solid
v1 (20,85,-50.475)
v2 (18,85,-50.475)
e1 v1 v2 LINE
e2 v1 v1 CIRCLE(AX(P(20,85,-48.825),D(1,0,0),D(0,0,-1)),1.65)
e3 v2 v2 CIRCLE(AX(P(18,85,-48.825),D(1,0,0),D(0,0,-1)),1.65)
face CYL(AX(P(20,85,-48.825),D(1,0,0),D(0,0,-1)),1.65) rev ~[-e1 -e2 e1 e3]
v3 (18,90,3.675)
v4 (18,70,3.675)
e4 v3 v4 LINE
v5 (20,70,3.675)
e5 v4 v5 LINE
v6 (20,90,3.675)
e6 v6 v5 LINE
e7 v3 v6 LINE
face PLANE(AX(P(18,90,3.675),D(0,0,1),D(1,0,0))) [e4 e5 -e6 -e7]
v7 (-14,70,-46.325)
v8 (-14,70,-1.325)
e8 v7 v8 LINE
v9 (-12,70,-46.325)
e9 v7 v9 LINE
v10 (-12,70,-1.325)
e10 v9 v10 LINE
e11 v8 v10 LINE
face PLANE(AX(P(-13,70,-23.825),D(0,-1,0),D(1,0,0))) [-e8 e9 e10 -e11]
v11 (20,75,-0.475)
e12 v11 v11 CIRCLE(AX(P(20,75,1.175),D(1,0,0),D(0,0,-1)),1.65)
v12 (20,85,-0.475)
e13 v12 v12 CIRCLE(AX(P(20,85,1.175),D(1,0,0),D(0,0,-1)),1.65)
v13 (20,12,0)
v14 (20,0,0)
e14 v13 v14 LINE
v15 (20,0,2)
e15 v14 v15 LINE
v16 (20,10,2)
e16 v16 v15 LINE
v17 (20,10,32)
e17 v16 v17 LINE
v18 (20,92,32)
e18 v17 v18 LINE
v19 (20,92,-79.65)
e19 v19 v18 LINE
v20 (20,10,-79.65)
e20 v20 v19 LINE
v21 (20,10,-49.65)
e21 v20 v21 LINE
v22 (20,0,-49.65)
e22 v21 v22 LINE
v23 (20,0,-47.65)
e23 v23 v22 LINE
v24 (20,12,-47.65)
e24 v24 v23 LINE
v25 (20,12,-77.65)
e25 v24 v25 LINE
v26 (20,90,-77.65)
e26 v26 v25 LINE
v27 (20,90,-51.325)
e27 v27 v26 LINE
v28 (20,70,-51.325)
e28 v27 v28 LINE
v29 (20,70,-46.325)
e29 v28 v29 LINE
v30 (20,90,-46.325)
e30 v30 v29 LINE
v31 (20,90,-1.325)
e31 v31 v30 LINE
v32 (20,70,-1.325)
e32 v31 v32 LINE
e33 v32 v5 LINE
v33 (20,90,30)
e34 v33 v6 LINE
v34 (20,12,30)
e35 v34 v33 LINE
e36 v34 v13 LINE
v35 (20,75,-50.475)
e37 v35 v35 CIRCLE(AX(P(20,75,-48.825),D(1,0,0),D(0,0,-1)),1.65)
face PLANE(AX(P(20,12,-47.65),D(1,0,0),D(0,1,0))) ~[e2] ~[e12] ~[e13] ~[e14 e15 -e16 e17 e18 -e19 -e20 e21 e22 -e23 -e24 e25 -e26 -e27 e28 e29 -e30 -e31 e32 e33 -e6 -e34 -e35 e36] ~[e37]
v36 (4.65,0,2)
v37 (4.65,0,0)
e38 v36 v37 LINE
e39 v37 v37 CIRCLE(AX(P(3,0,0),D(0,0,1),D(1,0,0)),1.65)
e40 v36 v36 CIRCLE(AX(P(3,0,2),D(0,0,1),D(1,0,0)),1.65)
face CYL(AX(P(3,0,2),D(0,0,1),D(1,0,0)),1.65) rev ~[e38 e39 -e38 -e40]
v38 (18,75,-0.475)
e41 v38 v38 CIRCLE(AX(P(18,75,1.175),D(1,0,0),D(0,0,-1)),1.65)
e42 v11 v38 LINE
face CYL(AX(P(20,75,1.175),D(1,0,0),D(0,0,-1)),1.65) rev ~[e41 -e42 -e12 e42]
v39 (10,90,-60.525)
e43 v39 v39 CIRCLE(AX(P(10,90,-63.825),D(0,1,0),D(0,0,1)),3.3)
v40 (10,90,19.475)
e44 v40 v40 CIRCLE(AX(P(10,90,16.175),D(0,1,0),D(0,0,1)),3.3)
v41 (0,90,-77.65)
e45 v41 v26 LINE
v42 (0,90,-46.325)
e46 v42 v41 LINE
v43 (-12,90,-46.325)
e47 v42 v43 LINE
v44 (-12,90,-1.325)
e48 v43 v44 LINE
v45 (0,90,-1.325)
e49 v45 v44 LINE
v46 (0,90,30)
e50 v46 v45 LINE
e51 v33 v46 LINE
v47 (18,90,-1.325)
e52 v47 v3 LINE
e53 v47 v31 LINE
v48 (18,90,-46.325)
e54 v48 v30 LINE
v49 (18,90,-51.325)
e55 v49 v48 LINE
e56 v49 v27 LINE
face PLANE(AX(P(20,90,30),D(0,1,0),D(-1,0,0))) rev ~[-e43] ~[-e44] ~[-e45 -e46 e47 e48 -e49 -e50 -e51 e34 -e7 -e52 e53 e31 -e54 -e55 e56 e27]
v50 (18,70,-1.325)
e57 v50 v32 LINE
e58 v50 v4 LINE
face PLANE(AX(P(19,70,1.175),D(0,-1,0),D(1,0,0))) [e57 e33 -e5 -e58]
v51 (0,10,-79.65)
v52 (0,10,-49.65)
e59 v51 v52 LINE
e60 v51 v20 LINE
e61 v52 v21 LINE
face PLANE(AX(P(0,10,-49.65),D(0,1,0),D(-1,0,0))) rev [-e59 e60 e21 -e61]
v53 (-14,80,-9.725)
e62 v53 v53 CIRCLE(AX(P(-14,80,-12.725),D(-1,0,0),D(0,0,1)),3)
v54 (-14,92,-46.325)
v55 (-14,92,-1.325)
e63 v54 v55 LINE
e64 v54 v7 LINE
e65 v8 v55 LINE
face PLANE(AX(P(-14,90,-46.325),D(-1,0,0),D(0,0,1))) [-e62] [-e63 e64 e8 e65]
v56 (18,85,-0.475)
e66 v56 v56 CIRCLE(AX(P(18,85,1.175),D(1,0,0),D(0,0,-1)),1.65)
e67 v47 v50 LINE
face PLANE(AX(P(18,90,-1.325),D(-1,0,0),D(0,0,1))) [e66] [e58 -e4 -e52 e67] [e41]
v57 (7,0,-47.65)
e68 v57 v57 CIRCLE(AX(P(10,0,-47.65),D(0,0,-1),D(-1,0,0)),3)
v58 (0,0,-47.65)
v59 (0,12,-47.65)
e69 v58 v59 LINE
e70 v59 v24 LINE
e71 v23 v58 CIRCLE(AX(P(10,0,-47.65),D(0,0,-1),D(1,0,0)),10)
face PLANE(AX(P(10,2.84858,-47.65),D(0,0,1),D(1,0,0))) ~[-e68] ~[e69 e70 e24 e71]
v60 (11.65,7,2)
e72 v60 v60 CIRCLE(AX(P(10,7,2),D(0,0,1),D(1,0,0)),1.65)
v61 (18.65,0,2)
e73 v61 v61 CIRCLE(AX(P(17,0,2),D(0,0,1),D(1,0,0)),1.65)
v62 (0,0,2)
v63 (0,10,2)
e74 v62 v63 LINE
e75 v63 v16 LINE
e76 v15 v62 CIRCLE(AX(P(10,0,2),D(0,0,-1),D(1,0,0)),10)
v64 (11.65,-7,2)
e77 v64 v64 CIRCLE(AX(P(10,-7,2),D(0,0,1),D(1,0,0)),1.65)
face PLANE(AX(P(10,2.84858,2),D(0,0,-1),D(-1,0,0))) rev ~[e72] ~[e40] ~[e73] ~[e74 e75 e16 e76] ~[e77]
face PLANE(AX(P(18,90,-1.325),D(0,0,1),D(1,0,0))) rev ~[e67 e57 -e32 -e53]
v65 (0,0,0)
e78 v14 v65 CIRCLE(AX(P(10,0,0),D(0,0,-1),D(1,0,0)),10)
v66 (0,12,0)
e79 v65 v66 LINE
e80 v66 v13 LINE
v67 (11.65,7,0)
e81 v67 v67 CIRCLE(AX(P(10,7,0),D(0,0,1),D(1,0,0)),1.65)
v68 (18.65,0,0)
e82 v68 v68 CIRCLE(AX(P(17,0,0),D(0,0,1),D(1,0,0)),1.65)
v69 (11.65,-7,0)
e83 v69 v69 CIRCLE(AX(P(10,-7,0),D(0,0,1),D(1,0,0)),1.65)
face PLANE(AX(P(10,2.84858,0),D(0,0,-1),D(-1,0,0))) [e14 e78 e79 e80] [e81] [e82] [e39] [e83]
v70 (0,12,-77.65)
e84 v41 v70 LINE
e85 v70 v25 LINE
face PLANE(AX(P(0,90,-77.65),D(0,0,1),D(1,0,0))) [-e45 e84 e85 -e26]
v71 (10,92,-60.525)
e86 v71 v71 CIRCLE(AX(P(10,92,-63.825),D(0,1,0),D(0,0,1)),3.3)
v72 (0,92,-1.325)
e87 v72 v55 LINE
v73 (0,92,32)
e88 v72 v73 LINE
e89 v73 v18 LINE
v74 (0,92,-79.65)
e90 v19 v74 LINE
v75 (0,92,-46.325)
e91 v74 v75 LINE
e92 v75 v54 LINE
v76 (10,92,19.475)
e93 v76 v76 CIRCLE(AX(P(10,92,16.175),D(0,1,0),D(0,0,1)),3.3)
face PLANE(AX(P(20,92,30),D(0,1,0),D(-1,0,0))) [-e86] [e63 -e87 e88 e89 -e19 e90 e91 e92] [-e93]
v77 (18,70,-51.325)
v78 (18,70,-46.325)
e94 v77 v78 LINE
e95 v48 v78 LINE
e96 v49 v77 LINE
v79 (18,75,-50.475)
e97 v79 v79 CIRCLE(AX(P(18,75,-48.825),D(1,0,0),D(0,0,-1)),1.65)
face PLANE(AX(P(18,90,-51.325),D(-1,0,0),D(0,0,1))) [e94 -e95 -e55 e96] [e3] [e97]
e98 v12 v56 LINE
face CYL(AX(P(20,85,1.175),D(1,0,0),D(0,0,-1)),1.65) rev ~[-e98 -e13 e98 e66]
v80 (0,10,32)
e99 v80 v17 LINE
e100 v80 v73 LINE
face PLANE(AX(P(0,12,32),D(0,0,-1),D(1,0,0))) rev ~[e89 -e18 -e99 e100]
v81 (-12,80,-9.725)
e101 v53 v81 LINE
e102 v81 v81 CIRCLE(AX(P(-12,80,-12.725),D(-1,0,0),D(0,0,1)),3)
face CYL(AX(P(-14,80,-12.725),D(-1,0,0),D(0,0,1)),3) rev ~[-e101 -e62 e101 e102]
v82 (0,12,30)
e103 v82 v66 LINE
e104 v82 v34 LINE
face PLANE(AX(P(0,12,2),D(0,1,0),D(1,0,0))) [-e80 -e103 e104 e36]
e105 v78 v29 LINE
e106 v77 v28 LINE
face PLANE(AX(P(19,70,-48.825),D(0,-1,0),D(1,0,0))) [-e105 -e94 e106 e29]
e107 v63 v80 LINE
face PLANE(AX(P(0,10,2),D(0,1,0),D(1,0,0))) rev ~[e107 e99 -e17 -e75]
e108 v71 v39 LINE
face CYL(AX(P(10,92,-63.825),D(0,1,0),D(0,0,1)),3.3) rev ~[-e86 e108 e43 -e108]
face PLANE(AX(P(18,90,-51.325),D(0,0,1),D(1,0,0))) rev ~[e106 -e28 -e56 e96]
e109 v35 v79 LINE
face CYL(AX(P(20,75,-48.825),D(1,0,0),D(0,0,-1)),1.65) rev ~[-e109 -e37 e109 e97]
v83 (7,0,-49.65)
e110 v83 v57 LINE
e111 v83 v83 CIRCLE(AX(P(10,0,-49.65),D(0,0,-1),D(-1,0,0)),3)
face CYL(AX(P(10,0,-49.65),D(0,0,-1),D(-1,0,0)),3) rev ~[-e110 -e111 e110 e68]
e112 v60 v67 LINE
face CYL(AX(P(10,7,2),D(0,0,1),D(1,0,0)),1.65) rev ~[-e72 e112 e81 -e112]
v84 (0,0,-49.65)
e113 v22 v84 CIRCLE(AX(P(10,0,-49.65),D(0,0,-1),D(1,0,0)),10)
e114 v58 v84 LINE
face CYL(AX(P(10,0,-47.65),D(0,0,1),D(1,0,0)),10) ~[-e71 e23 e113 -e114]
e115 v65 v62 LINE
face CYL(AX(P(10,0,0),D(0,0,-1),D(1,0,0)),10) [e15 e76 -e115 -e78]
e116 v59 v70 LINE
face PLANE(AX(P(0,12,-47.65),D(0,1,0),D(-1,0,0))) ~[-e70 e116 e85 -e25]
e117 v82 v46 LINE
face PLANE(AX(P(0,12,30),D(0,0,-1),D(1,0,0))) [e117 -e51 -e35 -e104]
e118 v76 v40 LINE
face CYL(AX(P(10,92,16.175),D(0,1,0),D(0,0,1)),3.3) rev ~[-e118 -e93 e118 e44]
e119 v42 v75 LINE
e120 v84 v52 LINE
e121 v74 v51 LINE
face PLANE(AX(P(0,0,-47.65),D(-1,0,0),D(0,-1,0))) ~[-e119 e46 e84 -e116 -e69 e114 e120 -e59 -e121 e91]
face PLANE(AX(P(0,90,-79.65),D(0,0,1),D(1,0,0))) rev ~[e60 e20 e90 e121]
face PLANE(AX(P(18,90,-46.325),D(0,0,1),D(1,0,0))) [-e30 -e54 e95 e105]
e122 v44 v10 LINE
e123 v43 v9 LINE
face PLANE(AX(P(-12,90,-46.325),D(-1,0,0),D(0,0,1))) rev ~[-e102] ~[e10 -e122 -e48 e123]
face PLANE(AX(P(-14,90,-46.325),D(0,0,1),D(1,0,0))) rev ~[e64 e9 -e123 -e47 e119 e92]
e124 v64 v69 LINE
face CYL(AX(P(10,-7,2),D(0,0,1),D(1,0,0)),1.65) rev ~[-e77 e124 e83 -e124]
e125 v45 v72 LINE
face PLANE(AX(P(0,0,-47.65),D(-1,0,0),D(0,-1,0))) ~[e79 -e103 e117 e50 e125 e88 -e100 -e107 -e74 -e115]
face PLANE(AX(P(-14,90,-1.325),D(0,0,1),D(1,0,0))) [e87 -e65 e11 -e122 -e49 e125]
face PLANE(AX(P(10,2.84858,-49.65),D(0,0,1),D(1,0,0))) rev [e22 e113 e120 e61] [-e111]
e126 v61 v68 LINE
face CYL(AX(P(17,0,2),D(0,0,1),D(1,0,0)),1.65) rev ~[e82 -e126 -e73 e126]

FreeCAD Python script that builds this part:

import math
import FreeCAD as App
import Part
import Sketcher

V = App.Vector
Q = App.Units.Quantity


def add_polygon(sketch, points):
    """Adds a closed chain of lines whose ends are joined by coincident constraints."""
    first, n = sketch.GeometryCount, len(points)
    for a, b in zip(points, points[1:] + points[:1]):
        sketch.addGeometry(Part.LineSegment(App.Vector(*a, 0), App.Vector(*b, 0)), False)
    for i in range(n):
        sketch.addConstraint(Sketcher.Constraint("Coincident", first + i, 2, first + (i + 1) % n, 1))

doc = App.newDocument("Part")
body = doc.addObject("PartDesign::Body", "Body")

sketch1 = doc.addObject("Sketcher::SketchObject", "Sketch")
body.addObject(sketch1)
sketch1.AttachmentSupport = (doc.XY_Plane, [""])
sketch1.MapMode = "FlatFace"
sketch1.addGeometry([
    Part.LineSegment(V(0, 12, 0), V(0, 0, 0)),
    Part.ArcOfCircle(Part.Circle(V(10, 0, 0), V(0, 0, 1), 10), math.radians(180), math.radians(360)),
    Part.LineSegment(V(20, 0, 0), V(20, 12, 0)),
    Part.LineSegment(V(20, 12, 0), V(0, 12, 0)),
], False)
sketch1.addConstraint([
    Sketcher.Constraint("Tangent", 0, 2, 1, 1),
    Sketcher.Constraint("Tangent", 1, 2, 2, 1),
    Sketcher.Constraint("Coincident", 2, 2, 3, 1),
    Sketcher.Constraint("Coincident", 3, 2, 0, 1),
    Sketcher.Constraint("Vertical", 0),
    Sketcher.Constraint("Vertical", 2),
    Sketcher.Constraint("Horizontal", 3),
    Sketcher.Constraint("Coincident", 0, 2, -1, 1),
    Sketcher.Constraint("Radius", 1, Q("10 mm")),
    Sketcher.Constraint("DistanceY", 0, 2, 0, 1, Q("12 mm")),
])
pad1 = doc.addObject("PartDesign::Pad", "Pad")
body.addObject(pad1)
pad1.Profile = sketch1
pad1.Length = 2

sketch2 = doc.addObject("Sketcher::SketchObject", "Sketch001")
body.addObject(sketch2)
sketch2.AttachmentSupport = (doc.XY_Plane, [""])
sketch2.MapMode = "FlatFace"
sketch2.AttachmentOffset = App.Placement(V(0, 0, 2), App.Rotation())
sketch2.addGeometry([
    Part.Circle(V(17, 0, 0), V(0, 0, 1), 1.6),
    Part.Circle(V(10, -7, 0), V(0, 0, 1), 1.6),
    Part.Circle(V(3, 0, 0), V(0, 0, 1), 1.6),
    Part.Circle(V(10, 7, 0), V(0, 0, 1), 1.6),
], False)
sketch2.addConstraint([
    Sketcher.Constraint("Equal", 0, 1),
    Sketcher.Constraint("Equal", 1, 2),
    Sketcher.Constraint("Equal", 2, 3),
    Sketcher.Constraint("Symmetric", 1, 3, 3, 3, -1),
    Sketcher.Constraint("PointOnObject", 0, 3, -1),
    Sketcher.Constraint("PointOnObject", 2, 3, -1),
    Sketcher.Constraint("Diameter", 0, Q("3.3 mm")),
    Sketcher.Constraint("DistanceX", -1, 1, 0, 3, Q("17 mm")),
    Sketcher.Constraint("DistanceX", -1, 1, 1, 3, Q("10 mm")),
    Sketcher.Constraint("DistanceY", 1, 3, -1, 1, Q("7 mm")),
    Sketcher.Constraint("DistanceX", -1, 1, 2, 3, Q("3 mm")),
])
pocket1 = doc.addObject("PartDesign::Pocket", "Pocket")
body.addObject(pocket1)
pocket1.Profile = sketch2
pocket1.Length = 2

sketch3 = doc.addObject("Sketcher::SketchObject", "Sketch002")
body.addObject(sketch3)
sketch3.AttachmentSupport = (doc.XY_Plane, [""])
sketch3.MapMode = "FlatFace"
sketch3.AttachmentOffset = App.Placement(V(0, 0, 2), App.Rotation())
add_polygon(sketch3, [(0, 12), (0, 10), (20, 10), (20, 12)])
sketch3.addConstraint([
    Sketcher.Constraint("Vertical", 0),
    Sketcher.Constraint("Horizontal", 1),
    Sketcher.Constraint("Vertical", 2),
    Sketcher.Constraint("Horizontal", 3),
    Sketcher.Constraint("PointOnObject", 0, 2, -2),
    Sketcher.Constraint("DistanceX", 1, 1, 1, 2, Q("20 mm")),
    Sketcher.Constraint("DistanceY", 0, 2, 0, 1, Q("2 mm")),
    Sketcher.Constraint("DistanceY", -1, 1, 0, 2, Q("10 mm")),
])
pad2 = doc.addObject("PartDesign::Pad", "Pad001")
body.addObject(pad2)
pad2.Profile = sketch3
pad2.Length = 30

sketch4 = doc.addObject("Sketcher::SketchObject", "Sketch003")
body.addObject(sketch4)
sketch4.AttachmentSupport = (doc.XZ_Plane, [""])
sketch4.MapMode = "FlatFace"
sketch4.AttachmentOffset = App.Placement(V(0, 0, -12), App.Rotation())
add_polygon(sketch4, [(0, 30), (0, 32), (20, 32), (20, 30)])
sketch4.addConstraint([
    Sketcher.Constraint("Vertical", 0),
    Sketcher.Constraint("Horizontal", 1),
    Sketcher.Constraint("Vertical", 2),
    Sketcher.Constraint("Horizontal", 3),
    Sketcher.Constraint("PointOnObject", 0, 2, -2),
    Sketcher.Constraint("DistanceX", 1, 1, 1, 2, Q("20 mm")),
    Sketcher.Constraint("DistanceY", 0, 1, 0, 2, Q("2 mm")),
    Sketcher.Constraint("DistanceY", -1, 1, 0, 2, Q("32 mm")),
])
pad3 = doc.addObject("PartDesign::Pad", "Pad002")
body.addObject(pad3)
pad3.Profile = sketch4
pad3.Length = 80
pad3.Reversed = True

sketch5 = doc.addObject("Sketcher::SketchObject", "Sketch004")
body.addObject(sketch5)
sketch5.AttachmentSupport = (doc.XY_Plane, [""])
sketch5.MapMode = "FlatFace"
sketch5.AttachmentOffset = App.Placement(V(0, 0, 30), App.Rotation())
add_polygon(sketch5, [(20, 92), (20, 90), (0, 90), (0, 92)])
sketch5.addConstraint([
    Sketcher.Constraint("Vertical", 0),
    Sketcher.Constraint("Horizontal", 1),
    Sketcher.Constraint("Vertical", 2),
    Sketcher.Constraint("Horizontal", 3),
    Sketcher.Constraint("PointOnObject", 1, 2, -2),
    Sketcher.Constraint("DistanceX", 1, 2, 1, 1, Q("20 mm")),
    Sketcher.Constraint("DistanceY", 0, 2, 0, 1, Q("2 mm")),
    Sketcher.Constraint("DistanceY", -1, 1, 0, 2, Q("90 mm")),
])
pad4 = doc.addObject("PartDesign::Pad", "Pad003")
body.addObject(pad4)
pad4.Profile = sketch5
pad4.Length = 109.65
pad4.Reversed = True

sketch6 = doc.addObject("Sketcher::SketchObject", "Sketch005")
body.addObject(sketch6)
sketch6.AttachmentSupport = (doc.XZ_Plane, [""])
sketch6.MapMode = "FlatFace"
sketch6.AttachmentOffset = App.Placement(V(0, 0, -90), App.Rotation())
add_polygon(sketch6, [(0, -77.7), (0, -79.7), (20, -79.7), (20, -77.7)])
sketch6.addConstraint([
    Sketcher.Constraint("Vertical", 0),
    Sketcher.Constraint("Horizontal", 1),
    Sketcher.Constraint("Vertical", 2),
    Sketcher.Constraint("Horizontal", 3),
    Sketcher.Constraint("PointOnObject", 0, 2, -2),
    Sketcher.Constraint("DistanceX", 1, 1, 1, 2, Q("20 mm")),
    Sketcher.Constraint("DistanceY", 0, 2, 0, 1, Q("2 mm")),
    Sketcher.Constraint("DistanceY", 0, 2, -1, 1, Q("79.65 mm")),
])
pad5 = doc.addObject("PartDesign::Pad", "Pad004")
body.addObject(pad5)
pad5.Profile = sketch6
pad5.Length = 80
doc.recompute()

datumplane = doc.addObject("PartDesign::Plane", "DatumPlane")
body.addObject(datumplane)
datumplane.AttachmentSupport = (doc.XY_Plane, [""])
datumplane.MapMode = "FlatFace"
datumplane.AttachmentOffset = App.Placement(V(0, 0, -23.825), App.Rotation())
mirrored = doc.addObject("PartDesign::Mirrored", "Mirrored")
body.addObject(mirrored)
mirrored.Originals = [pad2]
mirrored.MirrorPlane = (datumplane, [""])
body.Tip = mirrored
doc.recompute()

datumplane2 = doc.addObject("PartDesign::Plane", "DatumPlane001")
body.addObject(datumplane2)
datumplane2.AttachmentSupport = (doc.XY_Plane, [""])
datumplane2.MapMode = "FlatFace"
datumplane2.AttachmentOffset = App.Placement(V(0, 0, -23.825), App.Rotation())
mirrored2 = doc.addObject("PartDesign::Mirrored", "Mirrored001")
body.addObject(mirrored2)
mirrored2.Originals = [pad1]
mirrored2.MirrorPlane = (datumplane2, [""])
body.Tip = mirrored2

sketch7 = doc.addObject("Sketcher::SketchObject", "Sketch006")
body.addObject(sketch7)
sketch7.AttachmentSupport = (doc.XY_Plane, [""])
sketch7.MapMode = "FlatFace"
sketch7.AttachmentOffset = App.Placement(V(0, 0, -49.65), App.Rotation())
sketch7.addGeometry(Part.Circle(V(10, 0, 0), V(0, 0, 1), 3), False)
sketch7.addConstraint([
    Sketcher.Constraint("PointOnObject", 0, 3, -1),
    Sketcher.Constraint("Diameter", 0, Q("6 mm")),
    Sketcher.Constraint("DistanceX", -1, 1, 0, 3, Q("10 mm")),
])
pocket2 = doc.addObject("PartDesign::Pocket", "Pocket001")
body.addObject(pocket2)
pocket2.Profile = sketch7
pocket2.Type = "UpToFirst"
pocket2.Reversed = True

sketch8 = doc.addObject("Sketcher::SketchObject", "Sketch007")
body.addObject(sketch8)
sketch8.AttachmentSupport = (doc.XZ_Plane, [""])
sketch8.MapMode = "FlatFace"
sketch8.AttachmentOffset = App.Placement(V(0, 0, -90), App.Rotation())
add_polygon(sketch8, [(18, 3.7), (18, -1.3), (20, -1.3), (20, 3.7)])
add_polygon(sketch8, [(18, -46.3), (18, -51.3), (20, -51.3), (20, -46.3)])
sketch8.addConstraint([
    Sketcher.Constraint("Vertical", 0),
    Sketcher.Constraint("Horizontal", 1),
    Sketcher.Constraint("Vertical", 2),
    Sketcher.Constraint("Horizontal", 3),
    Sketcher.Constraint("Vertical", 4),
    Sketcher.Constraint("Horizontal", 5),
    Sketcher.Constraint("Vertical", 6),
    Sketcher.Constraint("Horizontal", 7),
    Sketcher.Constraint("Vertical", 3, 2, 4, 2),
    Sketcher.Constraint("Vertical", 2, 2, 5, 2),
    Sketcher.Constraint("Equal", 2, 4),
    Sketcher.Constraint("DistanceX", 1, 1, 1, 2, Q("2 mm")),
    Sketcher.Constraint("DistanceY", 0, 2, 0, 1, Q("5 mm")),
    Sketcher.Constraint("DistanceX", -1, 1, 0, 2, Q("18 mm")),
    Sketcher.Constraint("DistanceY", 4, 2, 0, 2, Q("50 mm")),
    Sketcher.Constraint("DistanceY", 0, 2, -1, 1, Q("1.325 mm")),
])
pad6 = doc.addObject("PartDesign::Pad", "Pad005")
body.addObject(pad6)
pad6.Profile = sketch8
pad6.Length = 20

sketch9 = doc.addObject("Sketcher::SketchObject", "Sketch008")
body.addObject(sketch9)
sketch9.AttachmentSupport = (doc.YZ_Plane, [""])
sketch9.MapMode = "FlatFace"
sketch9.AttachmentOffset = App.Placement(V(0, 0, 20), App.Rotation())
sketch9.addGeometry([
    Part.Circle(V(75, 1.2, 0), V(0, 0, 1), 1.6),
    Part.Circle(V(85, 1.2, 0), V(0, 0, 1), 1.6),
    Part.Circle(V(75, -48.8, 0), V(0, 0, 1), 1.6),
    Part.Circle(V(85, -48.8, 0), V(0, 0, 1), 1.6),
], False)
sketch9.addConstraint([
    Sketcher.Constraint("Equal", 0, 1),
    Sketcher.Constraint("Equal", 1, 2),
    Sketcher.Constraint("Equal", 2, 3),
    Sketcher.Constraint("Horizontal", 0, 3, 1, 3),
    Sketcher.Constraint("Horizontal", 2, 3, 3, 3),
    Sketcher.Constraint("Vertical", 0, 3, 2, 3),
    Sketcher.Constraint("Vertical", 1, 3, 3, 3),
    Sketcher.Constraint("Diameter", 0, Q("3.3 mm")),
    Sketcher.Constraint("DistanceX", -1, 1, 0, 3, Q("75 mm")),
    Sketcher.Constraint("DistanceX", -1, 1, 1, 3, Q("85 mm")),
    Sketcher.Constraint("DistanceY", 2, 3, 0, 3, Q("50 mm")),
    Sketcher.Constraint("DistanceY", -1, 1, 0, 3, Q("1.175 mm")),
])
pocket3 = doc.addObject("PartDesign::Pocket", "Pocket002")
body.addObject(pocket3)
pocket3.Profile = sketch9
pocket3.Length = 20

sketch10 = doc.addObject("Sketcher::SketchObject", "Sketch009")
body.addObject(sketch10)
sketch10.AttachmentSupport = (doc.XZ_Plane, [""])
sketch10.MapMode = "FlatFace"
sketch10.AttachmentOffset = App.Placement(V(0, 0, -92), App.Rotation())
sketch10.addGeometry([
    Part.Circle(V(10, -63.8, 0), V(0, 0, 1), 3.3),
    Part.Circle(V(10, 16.2, 0), V(0, 0, 1), 3.3),
], False)
sketch10.addConstraint([
    Sketcher.Constraint("Equal", 0, 1),
    Sketcher.Constraint("Vertical", 0, 3, 1, 3),
    Sketcher.Constraint("Diameter", 0, Q("6.6 mm")),
    Sketcher.Constraint("DistanceX", -1, 1, 0, 3, Q("10 mm")),
    Sketcher.Constraint("DistanceY", 0, 3, 1, 3, Q("80 mm")),
    Sketcher.Constraint("DistanceY", 0, 3, -1, 1, Q("63.825 mm")),
])
pocket4 = doc.addObject("PartDesign::Pocket", "Pocket003")
body.addObject(pocket4)
pocket4.Profile = sketch10
pocket4.Length = 10
pocket4.Reversed = True

sketch11 = doc.addObject("Sketcher::SketchObject", "Sketch010")
body.addObject(sketch11)
sketch11.AttachmentSupport = (doc.YZ_Plane, [""])
sketch11.MapMode = "FlatFace"
add_polygon(sketch11, [(92, -46.3), (90, -46.3), (90, -1.3), (92, -1.3)])
sketch11.addConstraint([
    Sketcher.Constraint("Horizontal", 0),
    Sketcher.Constraint("Vertical", 1),
    Sketcher.Constraint("Horizontal", 2),
    Sketcher.Constraint("Vertical", 3),
    Sketcher.Constraint("DistanceX", 0, 2, 0, 1, Q("2 mm")),
    Sketcher.Constraint("DistanceY", 1, 1, 1, 2, Q("45 mm")),
    Sketcher.Constraint("DistanceX", -1, 1, 0, 2, Q("90 mm")),
    Sketcher.Constraint("DistanceY", 0, 2, -1, 1, Q("46.325 mm")),
])
pad7 = doc.addObject("PartDesign::Pad", "Pad006")
body.addObject(pad7)
pad7.Profile = sketch11
pad7.Length = 14
pad7.Reversed = True

sketch12 = doc.addObject("Sketcher::SketchObject", "Sketch011")
body.addObject(sketch12)
sketch12.AttachmentSupport = (doc.XZ_Plane, [""])
sketch12.MapMode = "FlatFace"
sketch12.AttachmentOffset = App.Placement(V(0, 0, -90), App.Rotation())
add_polygon(sketch12, [(-14, -1.3), (-14, -46.3), (-12, -46.3), (-12, -1.3)])
sketch12.addConstraint([
    Sketcher.Constraint("Vertical", 0),
    Sketcher.Constraint("Horizontal", 1),
    Sketcher.Constraint("Vertical", 2),
    Sketcher.Constraint("Horizontal", 3),
    Sketcher.Constraint("DistanceX", 1, 1, 1, 2, Q("2 mm")),
    Sketcher.Constraint("DistanceY", 0, 2, 0, 1, Q("45 mm")),
    Sketcher.Constraint("DistanceX", 0, 2, -1, 1, Q("14 mm")),
    Sketcher.Constraint("DistanceY", 0, 2, -1, 1, Q("46.325 mm")),
])
pad8 = doc.addObject("PartDesign::Pad", "Pad007")
body.addObject(pad8)
pad8.Profile = sketch12
pad8.Length = 20

sketch13 = doc.addObject("Sketcher::SketchObject", "Sketch012")
body.addObject(sketch13)
sketch13.AttachmentSupport = (doc.YZ_Plane, [""])
sketch13.MapMode = "FlatFace"
sketch13.AttachmentOffset = App.Placement(V(0, 0, -14), App.Rotation())
sketch13.addGeometry(Part.Circle(V(80, -12.7, 0), V(0, 0, 1), 3), False)
sketch13.addConstraint([
    Sketcher.Constraint("Diameter", 0, Q("6 mm")),
    Sketcher.Constraint("DistanceX", -1, 1, 0, 3, Q("80 mm")),
    Sketcher.Constraint("DistanceY", 0, 3, -1, 1, Q("12.725 mm")),
])
pocket5 = doc.addObject("PartDesign::Pocket", "Pocket004")
body.addObject(pocket5)
pocket5.Profile = sketch13
pocket5.Length = 20
pocket5.Reversed = True

doc.recompute()
